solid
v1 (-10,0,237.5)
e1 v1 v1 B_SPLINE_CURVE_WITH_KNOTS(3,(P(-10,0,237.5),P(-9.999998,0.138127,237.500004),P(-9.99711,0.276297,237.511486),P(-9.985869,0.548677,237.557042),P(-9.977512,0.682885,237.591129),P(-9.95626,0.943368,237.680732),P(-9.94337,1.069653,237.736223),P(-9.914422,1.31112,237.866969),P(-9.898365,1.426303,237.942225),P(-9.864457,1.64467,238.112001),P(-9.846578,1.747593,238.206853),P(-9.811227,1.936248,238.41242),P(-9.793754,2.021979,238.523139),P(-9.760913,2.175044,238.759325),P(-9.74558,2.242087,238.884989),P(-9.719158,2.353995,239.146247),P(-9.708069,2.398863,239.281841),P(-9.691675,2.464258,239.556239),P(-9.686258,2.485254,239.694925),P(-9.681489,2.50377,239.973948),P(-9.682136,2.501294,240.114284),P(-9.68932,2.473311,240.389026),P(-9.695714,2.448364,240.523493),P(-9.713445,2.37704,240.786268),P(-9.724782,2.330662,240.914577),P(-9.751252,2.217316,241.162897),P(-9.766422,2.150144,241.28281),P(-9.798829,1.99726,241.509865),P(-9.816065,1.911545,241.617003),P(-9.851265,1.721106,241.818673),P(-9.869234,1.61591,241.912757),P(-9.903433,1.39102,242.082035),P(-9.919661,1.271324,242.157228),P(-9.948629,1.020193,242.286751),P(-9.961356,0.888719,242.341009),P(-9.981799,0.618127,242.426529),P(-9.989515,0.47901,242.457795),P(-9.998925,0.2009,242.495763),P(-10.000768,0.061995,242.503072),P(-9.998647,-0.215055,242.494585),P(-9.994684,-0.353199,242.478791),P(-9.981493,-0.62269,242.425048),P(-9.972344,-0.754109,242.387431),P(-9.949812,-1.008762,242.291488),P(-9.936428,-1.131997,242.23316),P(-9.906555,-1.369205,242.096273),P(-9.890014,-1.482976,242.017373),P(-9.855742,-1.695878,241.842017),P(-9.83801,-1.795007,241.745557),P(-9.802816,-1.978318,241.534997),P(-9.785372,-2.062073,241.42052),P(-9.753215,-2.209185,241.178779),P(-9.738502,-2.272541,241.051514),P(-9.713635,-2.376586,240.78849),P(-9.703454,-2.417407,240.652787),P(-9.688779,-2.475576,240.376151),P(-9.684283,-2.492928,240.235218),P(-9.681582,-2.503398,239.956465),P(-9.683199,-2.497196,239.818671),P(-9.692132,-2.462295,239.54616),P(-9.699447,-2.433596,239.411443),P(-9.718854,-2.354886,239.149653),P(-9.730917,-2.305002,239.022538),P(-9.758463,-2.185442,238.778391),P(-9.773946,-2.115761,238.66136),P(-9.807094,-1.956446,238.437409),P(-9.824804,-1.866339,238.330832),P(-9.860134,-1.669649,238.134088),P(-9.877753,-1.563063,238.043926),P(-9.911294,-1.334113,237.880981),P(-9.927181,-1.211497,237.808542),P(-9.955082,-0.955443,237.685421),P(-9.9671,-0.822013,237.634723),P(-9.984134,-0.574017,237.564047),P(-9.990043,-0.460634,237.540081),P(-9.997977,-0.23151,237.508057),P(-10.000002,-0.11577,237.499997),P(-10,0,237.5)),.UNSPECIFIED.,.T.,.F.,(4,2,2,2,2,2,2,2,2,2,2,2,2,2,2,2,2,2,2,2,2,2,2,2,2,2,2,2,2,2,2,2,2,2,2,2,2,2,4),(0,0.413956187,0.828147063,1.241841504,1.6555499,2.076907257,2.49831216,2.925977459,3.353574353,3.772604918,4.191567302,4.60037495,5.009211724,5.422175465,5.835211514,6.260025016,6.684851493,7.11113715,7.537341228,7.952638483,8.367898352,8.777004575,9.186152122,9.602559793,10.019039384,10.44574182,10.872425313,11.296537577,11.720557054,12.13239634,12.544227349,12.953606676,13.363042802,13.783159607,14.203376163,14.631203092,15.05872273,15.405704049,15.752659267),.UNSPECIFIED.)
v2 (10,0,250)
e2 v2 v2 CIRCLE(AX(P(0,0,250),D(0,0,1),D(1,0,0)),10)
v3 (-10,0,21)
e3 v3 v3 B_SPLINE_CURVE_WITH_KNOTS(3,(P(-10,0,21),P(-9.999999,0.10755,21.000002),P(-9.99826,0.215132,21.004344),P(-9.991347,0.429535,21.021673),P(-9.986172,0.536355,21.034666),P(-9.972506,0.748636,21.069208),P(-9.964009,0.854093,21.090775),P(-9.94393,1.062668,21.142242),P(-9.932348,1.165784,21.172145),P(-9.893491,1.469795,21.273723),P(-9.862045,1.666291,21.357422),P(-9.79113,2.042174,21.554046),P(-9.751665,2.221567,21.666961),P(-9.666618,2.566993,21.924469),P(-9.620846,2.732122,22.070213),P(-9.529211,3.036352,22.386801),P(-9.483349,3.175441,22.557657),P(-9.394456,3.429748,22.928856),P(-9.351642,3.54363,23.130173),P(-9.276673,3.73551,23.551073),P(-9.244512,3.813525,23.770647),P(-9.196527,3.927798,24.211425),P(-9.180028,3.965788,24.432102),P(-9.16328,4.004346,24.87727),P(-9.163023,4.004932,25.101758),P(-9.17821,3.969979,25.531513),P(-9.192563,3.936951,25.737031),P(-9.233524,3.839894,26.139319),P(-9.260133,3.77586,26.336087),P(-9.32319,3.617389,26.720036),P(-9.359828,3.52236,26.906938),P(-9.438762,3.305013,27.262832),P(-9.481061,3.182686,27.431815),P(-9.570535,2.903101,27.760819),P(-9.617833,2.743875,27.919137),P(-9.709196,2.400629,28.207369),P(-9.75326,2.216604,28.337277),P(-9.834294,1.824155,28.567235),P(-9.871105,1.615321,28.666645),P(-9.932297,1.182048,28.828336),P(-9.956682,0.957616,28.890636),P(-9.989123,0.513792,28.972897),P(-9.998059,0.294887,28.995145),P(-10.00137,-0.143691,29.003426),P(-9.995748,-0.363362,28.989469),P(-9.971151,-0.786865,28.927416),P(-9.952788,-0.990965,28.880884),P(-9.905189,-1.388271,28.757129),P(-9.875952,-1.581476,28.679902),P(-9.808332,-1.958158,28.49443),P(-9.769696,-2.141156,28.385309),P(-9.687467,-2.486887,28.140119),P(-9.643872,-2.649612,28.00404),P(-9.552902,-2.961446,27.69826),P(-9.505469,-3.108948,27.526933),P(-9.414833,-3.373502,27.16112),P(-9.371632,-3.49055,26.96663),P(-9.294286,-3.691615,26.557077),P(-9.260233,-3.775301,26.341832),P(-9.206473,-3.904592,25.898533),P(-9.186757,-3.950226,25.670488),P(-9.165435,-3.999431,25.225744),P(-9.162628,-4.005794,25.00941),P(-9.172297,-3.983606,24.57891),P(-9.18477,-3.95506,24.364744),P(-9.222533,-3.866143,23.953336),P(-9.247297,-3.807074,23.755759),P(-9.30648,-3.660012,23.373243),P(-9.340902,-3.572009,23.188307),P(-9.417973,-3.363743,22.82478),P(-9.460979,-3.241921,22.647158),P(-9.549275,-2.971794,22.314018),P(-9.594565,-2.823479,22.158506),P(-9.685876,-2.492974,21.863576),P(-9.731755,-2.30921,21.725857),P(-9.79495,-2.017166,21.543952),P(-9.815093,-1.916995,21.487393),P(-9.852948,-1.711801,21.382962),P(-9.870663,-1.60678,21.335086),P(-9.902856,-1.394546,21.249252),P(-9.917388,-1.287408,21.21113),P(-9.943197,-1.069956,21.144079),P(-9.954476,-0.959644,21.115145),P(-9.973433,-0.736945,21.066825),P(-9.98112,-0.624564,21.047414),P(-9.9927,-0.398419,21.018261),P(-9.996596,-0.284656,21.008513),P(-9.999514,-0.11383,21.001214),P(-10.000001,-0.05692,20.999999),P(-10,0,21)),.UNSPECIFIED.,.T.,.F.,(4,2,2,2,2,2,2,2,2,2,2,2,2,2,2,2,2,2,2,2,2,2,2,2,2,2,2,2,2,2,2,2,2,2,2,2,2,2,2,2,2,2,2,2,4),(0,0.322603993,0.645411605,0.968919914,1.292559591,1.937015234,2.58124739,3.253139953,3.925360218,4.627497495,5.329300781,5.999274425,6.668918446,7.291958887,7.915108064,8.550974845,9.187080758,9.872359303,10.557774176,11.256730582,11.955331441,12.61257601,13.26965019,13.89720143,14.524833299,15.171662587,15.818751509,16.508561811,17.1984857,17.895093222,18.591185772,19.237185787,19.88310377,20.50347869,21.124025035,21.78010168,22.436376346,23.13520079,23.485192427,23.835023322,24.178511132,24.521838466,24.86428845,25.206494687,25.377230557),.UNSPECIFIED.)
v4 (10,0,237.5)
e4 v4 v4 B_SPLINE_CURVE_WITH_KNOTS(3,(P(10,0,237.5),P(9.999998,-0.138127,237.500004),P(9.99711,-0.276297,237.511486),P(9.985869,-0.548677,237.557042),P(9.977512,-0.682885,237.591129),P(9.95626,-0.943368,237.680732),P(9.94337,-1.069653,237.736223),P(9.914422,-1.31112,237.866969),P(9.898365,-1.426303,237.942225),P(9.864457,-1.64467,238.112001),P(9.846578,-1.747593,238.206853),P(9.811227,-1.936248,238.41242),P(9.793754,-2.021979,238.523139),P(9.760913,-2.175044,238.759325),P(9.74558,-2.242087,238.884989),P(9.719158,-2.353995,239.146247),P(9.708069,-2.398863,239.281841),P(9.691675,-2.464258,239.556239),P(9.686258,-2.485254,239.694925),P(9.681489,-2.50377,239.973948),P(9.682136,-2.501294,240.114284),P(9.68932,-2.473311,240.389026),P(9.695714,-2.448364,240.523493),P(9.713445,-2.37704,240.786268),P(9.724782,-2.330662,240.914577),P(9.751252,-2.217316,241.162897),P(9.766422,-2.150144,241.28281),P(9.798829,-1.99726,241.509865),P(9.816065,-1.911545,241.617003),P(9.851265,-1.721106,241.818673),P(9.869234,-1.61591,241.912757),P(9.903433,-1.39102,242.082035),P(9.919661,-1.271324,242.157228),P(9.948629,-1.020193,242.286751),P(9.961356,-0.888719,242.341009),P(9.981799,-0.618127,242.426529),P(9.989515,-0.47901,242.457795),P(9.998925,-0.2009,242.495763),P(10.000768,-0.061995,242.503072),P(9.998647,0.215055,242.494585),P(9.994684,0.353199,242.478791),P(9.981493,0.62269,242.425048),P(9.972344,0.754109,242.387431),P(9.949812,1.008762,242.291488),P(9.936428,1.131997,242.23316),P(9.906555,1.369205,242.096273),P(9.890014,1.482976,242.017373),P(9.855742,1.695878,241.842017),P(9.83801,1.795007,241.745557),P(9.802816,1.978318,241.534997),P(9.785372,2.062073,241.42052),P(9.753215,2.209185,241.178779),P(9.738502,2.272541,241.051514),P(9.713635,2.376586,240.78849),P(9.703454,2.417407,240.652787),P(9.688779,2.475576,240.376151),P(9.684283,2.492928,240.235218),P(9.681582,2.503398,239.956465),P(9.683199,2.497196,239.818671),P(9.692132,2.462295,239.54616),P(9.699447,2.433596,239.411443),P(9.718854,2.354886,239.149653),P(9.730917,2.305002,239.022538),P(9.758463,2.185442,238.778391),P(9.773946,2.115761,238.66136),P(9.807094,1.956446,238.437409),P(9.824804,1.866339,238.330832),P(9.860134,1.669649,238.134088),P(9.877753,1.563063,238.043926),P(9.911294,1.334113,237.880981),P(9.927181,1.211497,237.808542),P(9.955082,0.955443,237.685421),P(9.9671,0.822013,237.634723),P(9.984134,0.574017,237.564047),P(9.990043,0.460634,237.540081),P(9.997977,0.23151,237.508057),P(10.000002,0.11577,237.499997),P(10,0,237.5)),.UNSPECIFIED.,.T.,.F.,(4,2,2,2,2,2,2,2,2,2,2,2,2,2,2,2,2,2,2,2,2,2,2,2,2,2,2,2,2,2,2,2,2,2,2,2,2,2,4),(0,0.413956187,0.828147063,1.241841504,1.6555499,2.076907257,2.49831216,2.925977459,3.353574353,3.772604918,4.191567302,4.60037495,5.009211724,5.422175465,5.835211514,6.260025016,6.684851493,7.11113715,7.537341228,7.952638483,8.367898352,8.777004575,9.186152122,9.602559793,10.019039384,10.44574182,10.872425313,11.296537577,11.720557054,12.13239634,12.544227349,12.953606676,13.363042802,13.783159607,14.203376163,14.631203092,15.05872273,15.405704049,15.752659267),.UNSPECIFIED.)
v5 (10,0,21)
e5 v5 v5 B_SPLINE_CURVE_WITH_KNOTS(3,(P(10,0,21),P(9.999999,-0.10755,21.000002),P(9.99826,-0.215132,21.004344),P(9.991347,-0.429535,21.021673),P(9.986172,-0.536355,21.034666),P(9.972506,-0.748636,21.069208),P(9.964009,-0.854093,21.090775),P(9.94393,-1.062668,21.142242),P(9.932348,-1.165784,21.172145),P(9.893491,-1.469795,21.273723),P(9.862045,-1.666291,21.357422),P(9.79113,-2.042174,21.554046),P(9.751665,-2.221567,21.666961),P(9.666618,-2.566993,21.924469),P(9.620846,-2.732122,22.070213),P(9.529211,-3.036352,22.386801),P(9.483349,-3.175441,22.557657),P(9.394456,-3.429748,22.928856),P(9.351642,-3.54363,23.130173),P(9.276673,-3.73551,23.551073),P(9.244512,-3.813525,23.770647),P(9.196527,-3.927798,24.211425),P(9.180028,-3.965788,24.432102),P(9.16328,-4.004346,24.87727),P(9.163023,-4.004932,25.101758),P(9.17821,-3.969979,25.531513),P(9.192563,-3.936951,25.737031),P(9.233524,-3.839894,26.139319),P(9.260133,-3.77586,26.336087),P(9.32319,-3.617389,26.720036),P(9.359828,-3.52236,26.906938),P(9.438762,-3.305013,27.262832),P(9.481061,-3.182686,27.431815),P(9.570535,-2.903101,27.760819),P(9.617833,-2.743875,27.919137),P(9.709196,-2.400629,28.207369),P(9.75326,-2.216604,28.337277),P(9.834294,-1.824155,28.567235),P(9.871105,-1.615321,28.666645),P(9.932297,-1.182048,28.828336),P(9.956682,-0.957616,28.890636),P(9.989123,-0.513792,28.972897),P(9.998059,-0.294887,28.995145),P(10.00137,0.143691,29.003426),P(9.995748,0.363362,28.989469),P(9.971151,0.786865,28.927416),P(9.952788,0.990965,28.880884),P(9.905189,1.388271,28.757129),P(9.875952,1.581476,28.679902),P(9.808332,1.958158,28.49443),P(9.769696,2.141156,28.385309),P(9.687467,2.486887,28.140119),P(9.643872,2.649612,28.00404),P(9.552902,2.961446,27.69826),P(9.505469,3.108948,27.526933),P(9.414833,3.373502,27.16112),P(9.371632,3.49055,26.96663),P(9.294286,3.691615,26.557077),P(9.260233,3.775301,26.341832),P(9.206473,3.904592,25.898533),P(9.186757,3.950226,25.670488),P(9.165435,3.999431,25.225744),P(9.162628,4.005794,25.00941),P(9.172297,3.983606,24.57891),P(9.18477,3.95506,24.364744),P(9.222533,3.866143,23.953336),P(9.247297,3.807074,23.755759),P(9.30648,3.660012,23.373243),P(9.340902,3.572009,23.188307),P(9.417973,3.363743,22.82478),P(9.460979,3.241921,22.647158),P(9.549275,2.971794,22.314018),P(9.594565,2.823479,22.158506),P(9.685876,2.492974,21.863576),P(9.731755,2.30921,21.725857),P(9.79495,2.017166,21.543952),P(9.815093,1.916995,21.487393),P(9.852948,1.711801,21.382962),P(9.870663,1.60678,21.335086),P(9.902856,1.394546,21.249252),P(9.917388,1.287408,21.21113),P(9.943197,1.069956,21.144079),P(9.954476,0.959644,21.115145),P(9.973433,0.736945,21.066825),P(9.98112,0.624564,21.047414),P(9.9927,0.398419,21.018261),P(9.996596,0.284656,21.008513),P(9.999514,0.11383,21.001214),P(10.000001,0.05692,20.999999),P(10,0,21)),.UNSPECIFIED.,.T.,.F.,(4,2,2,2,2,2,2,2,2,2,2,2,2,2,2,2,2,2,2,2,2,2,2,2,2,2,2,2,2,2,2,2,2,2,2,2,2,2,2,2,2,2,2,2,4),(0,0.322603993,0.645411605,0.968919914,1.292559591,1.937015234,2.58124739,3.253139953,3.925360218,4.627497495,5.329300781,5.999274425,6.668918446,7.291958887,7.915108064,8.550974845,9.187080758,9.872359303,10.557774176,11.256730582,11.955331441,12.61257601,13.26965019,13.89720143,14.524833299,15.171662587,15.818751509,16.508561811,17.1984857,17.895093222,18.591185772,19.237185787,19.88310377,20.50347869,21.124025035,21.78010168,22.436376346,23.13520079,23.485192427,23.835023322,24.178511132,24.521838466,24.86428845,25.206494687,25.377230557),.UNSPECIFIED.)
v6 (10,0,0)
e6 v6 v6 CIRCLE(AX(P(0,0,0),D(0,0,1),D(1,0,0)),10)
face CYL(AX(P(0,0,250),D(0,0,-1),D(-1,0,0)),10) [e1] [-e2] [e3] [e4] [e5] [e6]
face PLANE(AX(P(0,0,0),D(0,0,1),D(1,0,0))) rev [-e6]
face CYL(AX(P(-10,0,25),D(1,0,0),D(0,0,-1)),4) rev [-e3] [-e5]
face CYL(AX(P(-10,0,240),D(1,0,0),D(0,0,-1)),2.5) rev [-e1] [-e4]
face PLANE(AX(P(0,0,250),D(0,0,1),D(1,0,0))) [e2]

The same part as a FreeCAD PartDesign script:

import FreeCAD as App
import Part
import Sketcher

doc = App.newDocument("Part")
body = doc.addObject("PartDesign::Body", "Body")

# Sketch on XY plane
sketch1 = doc.addObject("Sketcher::SketchObject", "Sketch")
body.addObject(sketch1)
sketch1.AttachmentSupport = (doc.XY_Plane, [""])
sketch1.MapMode = "FlatFace"
sketch1.addGeometry(Part.Circle(App.Vector(0, 0, 0), App.Vector(0, 0, 1), 10), False)
sketch1.addConstraint([
    Sketcher.Constraint("Coincident", 0, 3, -1, 1),
    Sketcher.Constraint("Diameter", 0, 20.0),
])
pad1 = doc.addObject("PartDesign::Pad", "Pad")
body.addObject(pad1)
pad1.Profile = sketch1
pad1.Length = 250

# Sketch on YZ plane
sketch2 = doc.addObject("Sketcher::SketchObject", "Sketch001")
body.addObject(sketch2)
sketch2.AttachmentSupport = (doc.YZ_Plane, [""])
sketch2.MapMode = "FlatFace"
sketch2.addGeometry([
    Part.Circle(App.Vector(0, 240, 0), App.Vector(0, 0, 1), 2.5),
    Part.Circle(App.Vector(0, 25, 0), App.Vector(0, 0, 1), 4),
], False)
sketch2.addConstraint([
    Sketcher.Constraint("PointOnObject", 0, 3, -2),
    Sketcher.Constraint("PointOnObject", 1, 3, -2),
    Sketcher.Constraint("Diameter", 0, 5.0),
    Sketcher.Constraint("Diameter", 1, 8.0),
    Sketcher.Constraint("DistanceY", -1, 1, 0, 3, 240.0),
    Sketcher.Constraint("DistanceY", -1, 1, 1, 3, 25.0),
])
pocket1 = doc.addObject("PartDesign::Pocket", "Pocket")
body.addObject(pocket1)
pocket1.Profile = sketch2
pocket1.Type = "ThroughAll"
pocket1.Midplane = True

doc.recompute()
